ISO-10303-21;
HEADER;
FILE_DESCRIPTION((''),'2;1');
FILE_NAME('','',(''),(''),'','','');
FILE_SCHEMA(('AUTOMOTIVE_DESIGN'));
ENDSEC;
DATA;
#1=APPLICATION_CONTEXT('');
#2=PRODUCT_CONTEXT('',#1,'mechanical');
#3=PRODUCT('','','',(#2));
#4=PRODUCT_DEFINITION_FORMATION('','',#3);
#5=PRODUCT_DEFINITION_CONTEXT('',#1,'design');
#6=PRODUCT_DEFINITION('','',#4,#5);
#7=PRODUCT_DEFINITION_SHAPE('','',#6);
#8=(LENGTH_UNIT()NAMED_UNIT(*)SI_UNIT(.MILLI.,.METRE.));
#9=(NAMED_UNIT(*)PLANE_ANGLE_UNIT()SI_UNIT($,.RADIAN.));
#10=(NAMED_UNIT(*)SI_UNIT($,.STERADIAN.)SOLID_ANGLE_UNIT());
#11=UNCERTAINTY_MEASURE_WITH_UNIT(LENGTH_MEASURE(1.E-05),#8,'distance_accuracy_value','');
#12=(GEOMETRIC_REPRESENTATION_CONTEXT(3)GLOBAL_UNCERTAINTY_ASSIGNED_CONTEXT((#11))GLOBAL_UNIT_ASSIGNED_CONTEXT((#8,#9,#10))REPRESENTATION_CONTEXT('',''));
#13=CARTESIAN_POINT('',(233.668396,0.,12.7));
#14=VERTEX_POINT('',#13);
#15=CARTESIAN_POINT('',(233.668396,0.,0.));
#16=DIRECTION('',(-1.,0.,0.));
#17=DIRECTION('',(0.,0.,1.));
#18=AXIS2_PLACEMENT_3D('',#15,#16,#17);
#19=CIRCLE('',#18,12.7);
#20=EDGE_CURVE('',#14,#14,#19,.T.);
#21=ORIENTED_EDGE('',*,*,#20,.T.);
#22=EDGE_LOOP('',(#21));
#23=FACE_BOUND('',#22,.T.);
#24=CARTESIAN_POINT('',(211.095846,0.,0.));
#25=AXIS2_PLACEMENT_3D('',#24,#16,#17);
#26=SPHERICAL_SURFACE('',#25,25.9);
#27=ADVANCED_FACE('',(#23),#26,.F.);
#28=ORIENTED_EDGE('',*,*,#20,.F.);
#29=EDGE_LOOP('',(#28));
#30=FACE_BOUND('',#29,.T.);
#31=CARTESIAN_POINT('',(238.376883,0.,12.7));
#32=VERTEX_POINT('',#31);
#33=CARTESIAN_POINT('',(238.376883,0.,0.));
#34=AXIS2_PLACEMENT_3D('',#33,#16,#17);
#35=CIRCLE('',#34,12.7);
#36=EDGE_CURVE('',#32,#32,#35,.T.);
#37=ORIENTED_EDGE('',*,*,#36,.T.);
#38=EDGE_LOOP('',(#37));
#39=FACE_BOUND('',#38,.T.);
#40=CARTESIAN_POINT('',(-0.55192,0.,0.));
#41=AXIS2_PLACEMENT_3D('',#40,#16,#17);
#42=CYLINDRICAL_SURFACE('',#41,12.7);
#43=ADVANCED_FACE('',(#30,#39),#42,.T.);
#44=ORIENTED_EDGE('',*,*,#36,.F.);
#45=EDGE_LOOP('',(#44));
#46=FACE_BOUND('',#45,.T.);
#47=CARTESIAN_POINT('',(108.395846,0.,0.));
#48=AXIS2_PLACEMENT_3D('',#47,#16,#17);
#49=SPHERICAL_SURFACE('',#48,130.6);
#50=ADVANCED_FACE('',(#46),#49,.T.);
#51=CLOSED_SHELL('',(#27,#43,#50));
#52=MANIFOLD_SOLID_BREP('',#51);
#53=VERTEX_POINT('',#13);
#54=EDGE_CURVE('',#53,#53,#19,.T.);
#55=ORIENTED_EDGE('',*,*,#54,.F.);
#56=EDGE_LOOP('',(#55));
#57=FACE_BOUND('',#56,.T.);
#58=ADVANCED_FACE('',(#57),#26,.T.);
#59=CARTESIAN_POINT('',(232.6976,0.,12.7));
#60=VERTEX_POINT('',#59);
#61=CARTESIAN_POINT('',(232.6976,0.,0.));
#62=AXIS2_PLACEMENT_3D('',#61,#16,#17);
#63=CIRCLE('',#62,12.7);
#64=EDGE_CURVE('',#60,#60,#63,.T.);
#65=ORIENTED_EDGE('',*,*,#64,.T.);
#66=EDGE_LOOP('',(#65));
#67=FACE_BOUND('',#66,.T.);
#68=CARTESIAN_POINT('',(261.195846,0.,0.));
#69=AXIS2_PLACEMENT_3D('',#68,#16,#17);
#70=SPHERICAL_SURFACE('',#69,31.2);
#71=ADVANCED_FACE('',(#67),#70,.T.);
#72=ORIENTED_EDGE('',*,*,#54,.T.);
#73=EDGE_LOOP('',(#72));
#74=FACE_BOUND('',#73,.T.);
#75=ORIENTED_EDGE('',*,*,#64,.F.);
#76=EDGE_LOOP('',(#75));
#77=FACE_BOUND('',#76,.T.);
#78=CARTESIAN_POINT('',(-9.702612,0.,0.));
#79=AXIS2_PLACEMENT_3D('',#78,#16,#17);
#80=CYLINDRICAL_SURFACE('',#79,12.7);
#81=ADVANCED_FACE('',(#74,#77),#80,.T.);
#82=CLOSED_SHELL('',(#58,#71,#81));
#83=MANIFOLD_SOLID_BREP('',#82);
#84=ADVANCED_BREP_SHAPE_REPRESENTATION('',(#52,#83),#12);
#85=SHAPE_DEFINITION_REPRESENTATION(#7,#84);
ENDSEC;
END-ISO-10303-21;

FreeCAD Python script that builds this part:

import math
import FreeCAD as App
import Part
import Sketcher
from FreeCAD import Vector

doc = App.newDocument("Part")
body = doc.addObject("PartDesign::Body", "Body")

# Sketch on XZ plane
sketch1 = body.newObject("Sketcher::SketchObject", "Sketch")
sketch1.AttachmentSupport = (doc.getObject("XZ_Plane"), [""])
sketch1.MapMode = "FlatFace"
sketch1.addGeometry(Part.ArcOfCircle(Part.Circle(Vector(261.2, 0, 0), Vector(0, 0, 1), 31.2), math.radians(-180), math.radians(-156)), False)
sketch1.addGeometry(Part.LineSegment(Vector(230, 0, 0), Vector(237, 0, 0)), False)
sketch1.addGeometry(Part.ArcOfCircle(Part.Circle(Vector(211.1, 0, 0), Vector(0, 0, 1), 25.9), math.radians(-29), math.radians(0)), False)
sketch1.addGeometry(Part.LineSegment(Vector(233.7, -12.7, 0), Vector(232.7, -12.7, 0)), False)
sketch1.addConstraint(Sketcher.Constraint("Coincident", 0, 1, 1, 1))
sketch1.addConstraint(Sketcher.Constraint("Coincident", 1, 2, 2, 2))
sketch1.addConstraint(Sketcher.Constraint("Coincident", 2, 1, 3, 1))
sketch1.addConstraint(Sketcher.Constraint("Coincident", 3, 2, 0, 2))
sketch1.addConstraint(Sketcher.Constraint("Horizontal", 1))
sketch1.addConstraint(Sketcher.Constraint("Horizontal", 3))
sketch1.addConstraint(Sketcher.Constraint("PointOnObject", 0, 3, -1))
sketch1.addConstraint(Sketcher.Constraint("PointOnObject", 2, 3, -1))
sketch1.addConstraint(Sketcher.Constraint("PointOnObject", 0, 1, -1))
sketch1.addConstraint(Sketcher.Constraint("Radius", 0, 31.2))
sketch1.addConstraint(Sketcher.Constraint("Radius", 2, 25.9))
sketch1.addConstraint(Sketcher.Constraint("DistanceX", 1, 1, 1, 2, 7.0))
sketch1.addConstraint(Sketcher.Constraint("DistanceY", 2, 1, -1, 1, 12.7))
sketch1.addConstraint(Sketcher.Constraint("DistanceX", -1, 1, 3, 2, 232.6976))
revolution = body.newObject("PartDesign::Revolution", "Revolution")
revolution.Profile = sketch1
revolution.ReferenceAxis = (sketch1, ["H_Axis"])
revolution.Angle = 360
body2 = doc.addObject("PartDesign::Body", "Body001")

# Sketch on XZ plane
sketch2 = body2.newObject("Sketcher::SketchObject", "Sketch001")
sketch2.AttachmentSupport = (doc.getObject("XZ_Plane001"), [""])
sketch2.MapMode = "FlatFace"
sketch2.addGeometry(Part.LineSegment(Vector(238.4, -12.7, 0), Vector(233.7, -12.7, 0)), False)
sketch2.addGeometry(Part.ArcOfCircle(Part.Circle(Vector(211.1, 0, 0), Vector(0, 0, 1), 25.9), math.radians(-29), math.radians(0)), False)
sketch2.addGeometry(Part.LineSegment(Vector(237, 0, 0), Vector(239, 0, 0)), False)
sketch2.addGeometry(Part.ArcOfCircle(Part.Circle(Vector(108.4, 0, 0), Vector(0, 0, 1), 130.6), math.radians(-5.58), math.radians(0)), False)
sketch2.addConstraint(Sketcher.Constraint("Coincident", 0, 2, 1, 1))
sketch2.addConstraint(Sketcher.Constraint("Coincident", 1, 2, 2, 1))
sketch2.addConstraint(Sketcher.Constraint("Coincident", 2, 2, 3, 2))
sketch2.addConstraint(Sketcher.Constraint("Coincident", 3, 1, 0, 1))
sketch2.addConstraint(Sketcher.Constraint("Horizontal", 0))
sketch2.addConstraint(Sketcher.Constraint("Horizontal", 2))
sketch2.addConstraint(Sketcher.Constraint("PointOnObject", 1, 3, -1))
sketch2.addConstraint(Sketcher.Constraint("PointOnObject", 3, 3, -1))
sketch2.addConstraint(Sketcher.Constraint("PointOnObject", 1, 2, -1))
sketch2.addConstraint(Sketcher.Constraint("Radius", 1, 25.9))
sketch2.addConstraint(Sketcher.Constraint("Radius", 3, 130.6))
sketch2.addConstraint(Sketcher.Constraint("DistanceX", 2, 1, 2, 2, 2.0))
sketch2.addConstraint(Sketcher.Constraint("DistanceY", 0, 2, -1, 1, 12.7))
sketch2.addConstraint(Sketcher.Constraint("DistanceX", -1, 1, 1, 3, 211.095846))
revolution2 = body2.newObject("PartDesign::Revolution", "Revolution001")
revolution2.Profile = sketch2
revolution2.ReferenceAxis = (sketch2, ["H_Axis"])
revolution2.Angle = 360

doc.recompute()
